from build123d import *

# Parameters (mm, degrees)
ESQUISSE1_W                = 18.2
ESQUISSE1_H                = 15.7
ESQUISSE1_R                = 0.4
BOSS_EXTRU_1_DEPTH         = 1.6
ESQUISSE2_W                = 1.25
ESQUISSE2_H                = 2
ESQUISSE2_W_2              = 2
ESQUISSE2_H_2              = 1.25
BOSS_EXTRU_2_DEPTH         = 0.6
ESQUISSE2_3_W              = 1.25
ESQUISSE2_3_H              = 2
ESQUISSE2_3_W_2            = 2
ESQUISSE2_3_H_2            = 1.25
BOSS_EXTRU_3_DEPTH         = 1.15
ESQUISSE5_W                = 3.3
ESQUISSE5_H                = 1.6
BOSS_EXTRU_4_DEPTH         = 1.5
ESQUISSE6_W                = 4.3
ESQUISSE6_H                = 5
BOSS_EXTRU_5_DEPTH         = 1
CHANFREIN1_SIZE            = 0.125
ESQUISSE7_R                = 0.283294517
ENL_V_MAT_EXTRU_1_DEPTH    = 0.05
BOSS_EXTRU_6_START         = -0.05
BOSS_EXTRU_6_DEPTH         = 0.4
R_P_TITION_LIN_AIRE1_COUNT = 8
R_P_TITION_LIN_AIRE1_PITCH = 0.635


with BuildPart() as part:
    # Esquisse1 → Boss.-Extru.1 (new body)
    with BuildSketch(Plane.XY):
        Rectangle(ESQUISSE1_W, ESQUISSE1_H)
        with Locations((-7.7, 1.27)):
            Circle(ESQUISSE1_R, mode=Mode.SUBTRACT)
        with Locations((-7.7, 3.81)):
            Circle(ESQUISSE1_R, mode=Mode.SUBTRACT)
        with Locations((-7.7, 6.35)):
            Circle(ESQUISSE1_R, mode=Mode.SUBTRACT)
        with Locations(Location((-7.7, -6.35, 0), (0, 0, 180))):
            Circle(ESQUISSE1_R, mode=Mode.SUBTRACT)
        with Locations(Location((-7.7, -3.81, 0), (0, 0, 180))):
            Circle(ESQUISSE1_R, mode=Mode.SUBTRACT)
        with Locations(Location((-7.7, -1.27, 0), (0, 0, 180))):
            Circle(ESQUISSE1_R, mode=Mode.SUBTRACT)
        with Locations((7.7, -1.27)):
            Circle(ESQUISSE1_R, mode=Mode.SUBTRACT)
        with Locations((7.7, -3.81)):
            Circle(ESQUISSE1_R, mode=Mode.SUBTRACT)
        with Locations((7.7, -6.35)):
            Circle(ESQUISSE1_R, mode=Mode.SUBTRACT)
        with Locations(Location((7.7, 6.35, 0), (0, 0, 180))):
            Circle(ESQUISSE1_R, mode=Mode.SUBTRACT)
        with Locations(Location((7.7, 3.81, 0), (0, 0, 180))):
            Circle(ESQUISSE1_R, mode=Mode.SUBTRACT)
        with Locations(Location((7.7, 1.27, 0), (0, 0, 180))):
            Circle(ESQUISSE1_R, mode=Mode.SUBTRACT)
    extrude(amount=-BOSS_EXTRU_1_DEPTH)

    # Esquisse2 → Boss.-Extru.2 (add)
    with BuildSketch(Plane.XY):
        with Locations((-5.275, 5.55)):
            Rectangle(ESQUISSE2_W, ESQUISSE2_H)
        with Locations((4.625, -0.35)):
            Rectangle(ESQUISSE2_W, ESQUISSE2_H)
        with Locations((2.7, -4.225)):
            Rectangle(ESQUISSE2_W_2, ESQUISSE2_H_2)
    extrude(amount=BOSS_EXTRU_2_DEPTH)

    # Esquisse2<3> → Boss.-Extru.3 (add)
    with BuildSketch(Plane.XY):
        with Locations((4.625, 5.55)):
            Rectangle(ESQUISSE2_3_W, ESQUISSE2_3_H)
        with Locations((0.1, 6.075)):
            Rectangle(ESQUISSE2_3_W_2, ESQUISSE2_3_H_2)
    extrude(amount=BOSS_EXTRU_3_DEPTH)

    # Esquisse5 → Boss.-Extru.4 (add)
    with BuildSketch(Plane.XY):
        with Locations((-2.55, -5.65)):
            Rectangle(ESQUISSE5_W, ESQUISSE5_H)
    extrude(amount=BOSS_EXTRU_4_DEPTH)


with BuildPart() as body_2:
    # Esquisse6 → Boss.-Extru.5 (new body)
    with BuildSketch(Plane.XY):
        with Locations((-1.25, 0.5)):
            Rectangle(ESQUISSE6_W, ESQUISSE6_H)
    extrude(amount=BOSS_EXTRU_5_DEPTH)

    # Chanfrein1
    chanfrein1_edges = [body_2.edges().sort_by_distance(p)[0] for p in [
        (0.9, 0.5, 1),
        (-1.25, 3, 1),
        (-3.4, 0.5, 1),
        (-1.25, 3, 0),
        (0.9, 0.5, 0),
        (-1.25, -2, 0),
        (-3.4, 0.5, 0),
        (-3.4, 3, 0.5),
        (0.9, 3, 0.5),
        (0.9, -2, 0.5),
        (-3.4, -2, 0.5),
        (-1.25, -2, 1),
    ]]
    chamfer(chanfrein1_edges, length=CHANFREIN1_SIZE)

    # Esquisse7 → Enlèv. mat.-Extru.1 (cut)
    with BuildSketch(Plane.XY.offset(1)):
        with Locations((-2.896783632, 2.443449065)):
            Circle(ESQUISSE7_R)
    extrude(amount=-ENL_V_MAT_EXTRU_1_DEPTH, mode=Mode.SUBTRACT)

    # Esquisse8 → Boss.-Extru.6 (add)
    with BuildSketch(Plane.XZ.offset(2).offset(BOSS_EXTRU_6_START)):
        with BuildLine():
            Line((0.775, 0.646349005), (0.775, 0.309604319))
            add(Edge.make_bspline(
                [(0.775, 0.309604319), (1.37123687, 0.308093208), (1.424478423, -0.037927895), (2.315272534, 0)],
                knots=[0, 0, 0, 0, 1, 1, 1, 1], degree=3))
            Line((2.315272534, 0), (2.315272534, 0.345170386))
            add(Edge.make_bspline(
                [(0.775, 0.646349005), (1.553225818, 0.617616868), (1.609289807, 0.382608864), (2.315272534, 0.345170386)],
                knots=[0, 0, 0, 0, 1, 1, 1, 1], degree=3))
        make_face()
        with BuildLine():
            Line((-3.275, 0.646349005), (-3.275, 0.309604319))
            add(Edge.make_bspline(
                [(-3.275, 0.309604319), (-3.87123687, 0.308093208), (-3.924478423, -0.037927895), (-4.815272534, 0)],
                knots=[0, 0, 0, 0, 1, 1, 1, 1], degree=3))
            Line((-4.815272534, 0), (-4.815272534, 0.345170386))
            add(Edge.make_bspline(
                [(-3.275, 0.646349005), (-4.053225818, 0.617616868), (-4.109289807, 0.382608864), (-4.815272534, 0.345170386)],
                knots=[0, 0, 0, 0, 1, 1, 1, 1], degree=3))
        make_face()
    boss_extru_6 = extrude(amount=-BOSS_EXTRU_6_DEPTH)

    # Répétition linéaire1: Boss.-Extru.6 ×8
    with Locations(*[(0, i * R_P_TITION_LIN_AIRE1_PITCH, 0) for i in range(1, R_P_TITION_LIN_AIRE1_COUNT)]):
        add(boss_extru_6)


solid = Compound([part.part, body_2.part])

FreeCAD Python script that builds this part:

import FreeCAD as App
import Part
import Sketcher
from FreeCAD import Vector

doc = App.newDocument("Part")
body = doc.addObject("PartDesign::Body", "Body")

# Sketch on XY plane
sketch1 = body.newObject("Sketcher::SketchObject", "Sketch")
sketch1.AttachmentSupport = (doc.getObject("XY_Plane"), [""])
sketch1.MapMode = "FlatFace"
sketch1.addGeometry(Part.LineSegment(Vector(-9.1, 7.85, 0), Vector(-9.1, -7.85, 0)), False)
sketch1.addGeometry(Part.LineSegment(Vector(-9.1, -7.85, 0), Vector(9.1, -7.85, 0)), False)
sketch1.addGeometry(Part.LineSegment(Vector(9.1, -7.85, 0), Vector(9.1, 7.85, 0)), False)
sketch1.addGeometry(Part.LineSegment(Vector(9.1, 7.85, 0), Vector(-9.1, 7.85, 0)), False)
sketch1.addGeometry(Part.Circle(Vector(-7.7, -6.35, 0), Vector(0, 0, 1), 0.4), False)
sketch1.addGeometry(Part.Circle(Vector(-7.7, -3.81, 0), Vector(0, 0, 1), 0.4), False)
sketch1.addGeometry(Part.Circle(Vector(-7.7, -1.27, 0), Vector(0, 0, 1), 0.4), False)
sketch1.addGeometry(Part.Circle(Vector(7.7, -6.35, 0), Vector(0, 0, 1), 0.4), False)
sketch1.addGeometry(Part.Circle(Vector(7.7, -3.81, 0), Vector(0, 0, 1), 0.4), False)
sketch1.addGeometry(Part.Circle(Vector(7.7, -1.27, 0), Vector(0, 0, 1), 0.4), False)
sketch1.addGeometry(Part.Circle(Vector(-7.7, 1.27, 0), Vector(0, 0, 1), 0.4), False)
sketch1.addGeometry(Part.Circle(Vector(-7.7, 3.81, 0), Vector(0, 0, 1), 0.4), False)
sketch1.addGeometry(Part.Circle(Vector(-7.7, 6.35, 0), Vector(0, 0, 1), 0.4), False)
sketch1.addGeometry(Part.Circle(Vector(7.7, 1.27, 0), Vector(0, 0, 1), 0.4), False)
sketch1.addGeometry(Part.Circle(Vector(7.7, 3.81, 0), Vector(0, 0, 1), 0.4), False)
sketch1.addGeometry(Part.Circle(Vector(7.7, 6.35, 0), Vector(0, 0, 1), 0.4), False)
sketch1.addConstraint(Sketcher.Constraint("Coincident", 0, 2, 1, 1))
sketch1.addConstraint(Sketcher.Constraint("Coincident", 1, 2, 2, 1))
sketch1.addConstraint(Sketcher.Constraint("Coincident", 2, 2, 3, 1))
sketch1.addConstraint(Sketcher.Constraint("Coincident", 3, 2, 0, 1))
sketch1.addConstraint(Sketcher.Constraint("Vertical", 0))
sketch1.addConstraint(Sketcher.Constraint("Horizontal", 1))
sketch1.addConstraint(Sketcher.Constraint("Vertical", 2))
sketch1.addConstraint(Sketcher.Constraint("Horizontal", 3))
sketch1.addConstraint(Sketcher.Constraint("Equal", 4, 5))
sketch1.addConstraint(Sketcher.Constraint("Equal", 5, 6))
sketch1.addConstraint(Sketcher.Constraint("Equal", 6, 7))
sketch1.addConstraint(Sketcher.Constraint("Equal", 7, 8))
sketch1.addConstraint(Sketcher.Constraint("Equal", 8, 9))
sketch1.addConstraint(Sketcher.Constraint("Equal", 9, 10))
sketch1.addConstraint(Sketcher.Constraint("Equal", 10, 11))
sketch1.addConstraint(Sketcher.Constraint("Equal", 11, 12))
sketch1.addConstraint(Sketcher.Constraint("Equal", 12, 13))
sketch1.addConstraint(Sketcher.Constraint("Equal", 13, 14))
sketch1.addConstraint(Sketcher.Constraint("Equal", 14, 15))
sketch1.addConstraint(Sketcher.Constraint("Symmetric", 9, 3, 10, 3, -1, 1))
sketch1.addConstraint(Sketcher.Constraint("Symmetric", 8, 3, 11, 3, -1, 1))
sketch1.addConstraint(Sketcher.Constraint("Symmetric", 7, 3, 12, 3, -1, 1))
sketch1.addConstraint(Sketcher.Constraint("Symmetric", 6, 3, 13, 3, -1, 1))
sketch1.addConstraint(Sketcher.Constraint("Symmetric", 5, 3, 14, 3, -1, 1))
sketch1.addConstraint(Sketcher.Constraint("Symmetric", 4, 3, 15, 3, -1, 1))
sketch1.addConstraint(Sketcher.Constraint("Symmetric", 0, 2, 2, 2, -1, 1))
sketch1.addConstraint(Sketcher.Constraint("Symmetric", 4, 3, 7, 3, -2))
sketch1.addConstraint(Sketcher.Constraint("Symmetric", 5, 3, 8, 3, -2))
sketch1.addConstraint(Sketcher.Constraint("Symmetric", 6, 3, 9, 3, -2))
sketch1.addConstraint(Sketcher.Constraint("Vertical", 4, 3, 5, 3))
sketch1.addConstraint(Sketcher.Constraint("Vertical", 5, 3, 6, 3))
sketch1.addConstraint(Sketcher.Constraint("Diameter", 4, 0.8))
sketch1.addConstraint(Sketcher.Constraint("DistanceX", 1, 1, 1, 2, 18.2))
sketch1.addConstraint(Sketcher.Constraint("DistanceY", 0, 2, 0, 1, 15.7))
sketch1.addConstraint(Sketcher.Constraint("DistanceX", 4, 3, -1, 1, 7.7))
sketch1.addConstraint(Sketcher.Constraint("DistanceY", 4, 3, 12, 3, 12.7))
sketch1.addConstraint(Sketcher.Constraint("DistanceY", 5, 3, -1, 1, 3.81))
sketch1.addConstraint(Sketcher.Constraint("DistanceY", 6, 3, -1, 1, 1.27))
pad1 = body.newObject("PartDesign::Pad", "Pad")
pad1.Profile = sketch1
pad1.Length = 1.6
pad1.Reversed = True

# Sketch on XY plane
sketch2 = body.newObject("Sketcher::SketchObject", "Sketch001")
sketch2.AttachmentSupport = (doc.getObject("XY_Plane"), [""])
sketch2.MapMode = "FlatFace"
sketch2.addGeometry(Part.LineSegment(Vector(-5.9, 6.5, 0), Vector(-5.9, 4.5, 0)), False)
sketch2.addGeometry(Part.LineSegment(Vector(-5.9, 4.5, 0), Vector(-4.7, 4.5, 0)), False)
sketch2.addGeometry(Part.LineSegment(Vector(-4.7, 4.5, 0), Vector(-4.7, 6.5, 0)), False)
sketch2.addGeometry(Part.LineSegment(Vector(-4.7, 6.5, 0), Vector(-5.9, 6.5, 0)), False)
sketch2.addGeometry(Part.LineSegment(Vector(4, 0.7, 0), Vector(4, -1.4, 0)), False)
sketch2.addGeometry(Part.LineSegment(Vector(4, -1.4, 0), Vector(5.2, -1.4, 0)), False)
sketch2.addGeometry(Part.LineSegment(Vector(5.2, -1.4, 0), Vector(5.2, 0.7, 0)), False)
sketch2.addGeometry(Part.LineSegment(Vector(5.2, 0.7, 0), Vector(4, 0.7, 0)), False)
sketch2.addGeometry(Part.LineSegment(Vector(1.7, -3.6, 0), Vector(1.7, -4.8, 0)), False)
sketch2.addGeometry(Part.LineSegment(Vector(1.7, -4.8, 0), Vector(3.7, -4.8, 0)), False)
sketch2.addGeometry(Part.LineSegment(Vector(3.7, -4.8, 0), Vector(3.7, -3.6, 0)), False)
sketch2.addGeometry(Part.LineSegment(Vector(3.7, -3.6, 0), Vector(1.7, -3.6, 0)), False)
sketch2.addConstraint(Sketcher.Constraint("Coincident", 0, 2, 1, 1))
sketch2.addConstraint(Sketcher.Constraint("Coincident", 1, 2, 2, 1))
sketch2.addConstraint(Sketcher.Constraint("Coincident", 2, 2, 3, 1))
sketch2.addConstraint(Sketcher.Constraint("Coincident", 3, 2, 0, 1))
sketch2.addConstraint(Sketcher.Constraint("Coincident", 4, 2, 5, 1))
sketch2.addConstraint(Sketcher.Constraint("Coincident", 5, 2, 6, 1))
sketch2.addConstraint(Sketcher.Constraint("Coincident", 6, 2, 7, 1))
sketch2.addConstraint(Sketcher.Constraint("Coincident", 7, 2, 4, 1))
sketch2.addConstraint(Sketcher.Constraint("Coincident", 8, 2, 9, 1))
sketch2.addConstraint(Sketcher.Constraint("Coincident", 9, 2, 10, 1))
sketch2.addConstraint(Sketcher.Constraint("Coincident", 10, 2, 11, 1))
sketch2.addConstraint(Sketcher.Constraint("Coincident", 11, 2, 8, 1))
sketch2.addConstraint(Sketcher.Constraint("Vertical", 0))
sketch2.addConstraint(Sketcher.Constraint("Horizontal", 1))
sketch2.addConstraint(Sketcher.Constraint("Vertical", 2))
sketch2.addConstraint(Sketcher.Constraint("Horizontal", 3))
sketch2.addConstraint(Sketcher.Constraint("Vertical", 4))
sketch2.addConstraint(Sketcher.Constraint("Horizontal", 5))
sketch2.addConstraint(Sketcher.Constraint("Vertical", 6))
sketch2.addConstraint(Sketcher.Constraint("Horizontal", 7))
sketch2.addConstraint(Sketcher.Constraint("Vertical", 8))
sketch2.addConstraint(Sketcher.Constraint("Horizontal", 9))
sketch2.addConstraint(Sketcher.Constraint("Vertical", 10))
sketch2.addConstraint(Sketcher.Constraint("Horizontal", 11))
sketch2.addConstraint(Sketcher.Constraint("Equal", 3, 5))
sketch2.addConstraint(Sketcher.Constraint("Equal", 11, 0))
sketch2.addConstraint(Sketcher.Constraint("Equal", 2, 4))
sketch2.addConstraint(Sketcher.Constraint("Equal", 7, 8))
sketch2.addConstraint(Sketcher.Constraint("DistanceX", 9, 1, 9, 2, 2.0))
sketch2.addConstraint(Sketcher.Constraint("DistanceX", -1, 1, 4, 2, 4.0))
sketch2.addConstraint(Sketcher.Constraint("DistanceX", 1, 1, 1, 2, 1.25))
sketch2.addConstraint(Sketcher.Constraint("DistanceX", 0, 2, -1, 1, 5.9))
sketch2.addConstraint(Sketcher.Constraint("DistanceX", -1, 1, 8, 2, 1.7))
sketch2.addConstraint(Sketcher.Constraint("DistanceY", 10, 2, -1, 1, 3.6))
sketch2.addConstraint(Sketcher.Constraint("DistanceY", 4, 2, 1, 2, 5.9))
sketch2.addConstraint(Sketcher.Constraint("DistanceY", 8, 2, 4, 2, 3.5))
pad2 = body.newObject("PartDesign::Pad", "Pad001")
pad2.Profile = sketch2
pad2.Length = 0.6

# Sketch on XY plane
sketch3 = body.newObject("Sketcher::SketchObject", "Sketch002")
sketch3.AttachmentSupport = (doc.getObject("XY_Plane"), [""])
sketch3.MapMode = "FlatFace"
sketch3.addGeometry(Part.LineSegment(Vector(4, 6.5, 0), Vector(4, 4.5, 0)), False)
sketch3.addGeometry(Part.LineSegment(Vector(4, 4.5, 0), Vector(5.2, 4.5, 0)), False)
sketch3.addGeometry(Part.LineSegment(Vector(5.2, 4.5, 0), Vector(5.2, 6.5, 0)), False)
sketch3.addGeometry(Part.LineSegment(Vector(5.2, 6.5, 0), Vector(4, 6.5, 0)), False)
sketch3.addGeometry(Part.LineSegment(Vector(-0.9, 6.7, 0), Vector(-0.9, 5.5, 0)), False)
sketch3.addGeometry(Part.LineSegment(Vector(-0.9, 5.5, 0), Vector(1.1, 5.5, 0)), False)
sketch3.addGeometry(Part.LineSegment(Vector(1.1, 5.5, 0), Vector(1.1, 6.7, 0)), False)
sketch3.addGeometry(Part.LineSegment(Vector(1.1, 6.7, 0), Vector(-0.9, 6.7, 0)), False)
sketch3.addConstraint(Sketcher.Constraint("Coincident", 0, 2, 1, 1))
sketch3.addConstraint(Sketcher.Constraint("Coincident", 1, 2, 2, 1))
sketch3.addConstraint(Sketcher.Constraint("Coincident", 2, 2, 3, 1))
sketch3.addConstraint(Sketcher.Constraint("Coincident", 3, 2, 0, 1))
sketch3.addConstraint(Sketcher.Constraint("Coincident", 4, 2, 5, 1))
sketch3.addConstraint(Sketcher.Constraint("Coincident", 5, 2, 6, 1))
sketch3.addConstraint(Sketcher.Constraint("Coincident", 6, 2, 7, 1))
sketch3.addConstraint(Sketcher.Constraint("Coincident", 7, 2, 4, 1))
sketch3.addConstraint(Sketcher.Constraint("Vertical", 0))
sketch3.addConstraint(Sketcher.Constraint("Horizontal", 1))
sketch3.addConstraint(Sketcher.Constraint("Vertical", 2))
sketch3.addConstraint(Sketcher.Constraint("Horizontal", 3))
sketch3.addConstraint(Sketcher.Constraint("Vertical", 4))
sketch3.addConstraint(Sketcher.Constraint("Horizontal", 5))
sketch3.addConstraint(Sketcher.Constraint("Vertical", 6))
sketch3.addConstraint(Sketcher.Constraint("Horizontal", 7))
sketch3.addConstraint(Sketcher.Constraint("Equal", 7, 0))
sketch3.addConstraint(Sketcher.Constraint("Equal", 3, 4))
sketch3.addConstraint(Sketcher.Constraint("DistanceX", 5, 1, 5, 2, 2.0))
sketch3.addConstraint(Sketcher.Constraint("DistanceX", -1, 1, 0, 2, 4.0))
sketch3.addConstraint(Sketcher.Constraint("DistanceX", 1, 1, 1, 2, 1.25))
sketch3.addConstraint(Sketcher.Constraint("DistanceX", 4, 2, -1, 1, 0.9))
sketch3.addConstraint(Sketcher.Constraint("DistanceY", -1, 1, 6, 2, 6.7))
sketch3.addConstraint(Sketcher.Constraint("DistanceY", 0, 2, 4, 2, 0.9))
pad3 = body.newObject("PartDesign::Pad", "Pad002")
pad3.Profile = sketch3
pad3.Length = 1.15

# Sketch on XY plane
sketch4 = body.newObject("Sketcher::SketchObject", "Sketch003")
sketch4.AttachmentSupport = (doc.getObject("XY_Plane"), [""])
sketch4.MapMode = "FlatFace"
sketch4.addGeometry(Part.LineSegment(Vector(-4.2, -4.8, 0), Vector(-4.2, -6.5, 0)), False)
sketch4.addGeometry(Part.LineSegment(Vector(-4.2, -6.5, 0), Vector(-0.9, -6.5, 0)), False)
sketch4.addGeometry(Part.LineSegment(Vector(-0.9, -6.5, 0), Vector(-0.9, -4.8, 0)), False)
sketch4.addGeometry(Part.LineSegment(Vector(-0.9, -4.8, 0), Vector(-4.2, -4.8, 0)), False)
sketch4.addConstraint(Sketcher.Constraint("Coincident", 0, 2, 1, 1))
sketch4.addConstraint(Sketcher.Constraint("Coincident", 1, 2, 2, 1))
sketch4.addConstraint(Sketcher.Constraint("Coincident", 2, 2, 3, 1))
sketch4.addConstraint(Sketcher.Constraint("Coincident", 3, 2, 0, 1))
sketch4.addConstraint(Sketcher.Constraint("Vertical", 0))
sketch4.addConstraint(Sketcher.Constraint("Horizontal", 1))
sketch4.addConstraint(Sketcher.Constraint("Vertical", 2))
sketch4.addConstraint(Sketcher.Constraint("Horizontal", 3))
sketch4.addConstraint(Sketcher.Constraint("DistanceX", 1, 1, 1, 2, 3.3))
sketch4.addConstraint(Sketcher.Constraint("DistanceY", 0, 2, 0, 1, 1.6))
sketch4.addConstraint(Sketcher.Constraint("DistanceX", 0, 2, -1, 1, 4.2))
sketch4.addConstraint(Sketcher.Constraint("DistanceY", 0, 2, -1, 1, 6.45))
pad4 = body.newObject("PartDesign::Pad", "Pad003")
pad4.Profile = sketch4
pad4.Length = 1.5
body2 = doc.addObject("PartDesign::Body", "Body001")

# Sketch on XY plane
sketch5 = body2.newObject("Sketcher::SketchObject", "Sketch004")
sketch5.AttachmentSupport = (doc.getObject("XY_Plane001"), [""])
sketch5.MapMode = "FlatFace"
sketch5.addGeometry(Part.LineSegment(Vector(-3.4, 3, 0), Vector(-3.4, -2, 0)), False)
sketch5.addGeometry(Part.LineSegment(Vector(-3.4, -2, 0), Vector(0.9, -2, 0)), False)
sketch5.addGeometry(Part.LineSegment(Vector(0.9, -2, 0), Vector(0.9, 3, 0)), False)
sketch5.addGeometry(Part.LineSegment(Vector(0.9, 3, 0), Vector(-3.4, 3, 0)), False)
sketch5.addConstraint(Sketcher.Constraint("Coincident", 0, 2, 1, 1))
sketch5.addConstraint(Sketcher.Constraint("Coincident", 1, 2, 2, 1))
sketch5.addConstraint(Sketcher.Constraint("Coincident", 2, 2, 3, 1))
sketch5.addConstraint(Sketcher.Constraint("Coincident", 3, 2, 0, 1))
sketch5.addConstraint(Sketcher.Constraint("Vertical", 0))
sketch5.addConstraint(Sketcher.Constraint("Horizontal", 1))
sketch5.addConstraint(Sketcher.Constraint("Vertical", 2))
sketch5.addConstraint(Sketcher.Constraint("Horizontal", 3))
sketch5.addConstraint(Sketcher.Constraint("DistanceY", 0, 2, 0, 1, 5.0))
sketch5.addConstraint(Sketcher.Constraint("DistanceX", 1, 1, 1, 2, 4.3))
sketch5.addConstraint(Sketcher.Constraint("DistanceY", 0, 2, -1, 1, 2.0))
sketch5.addConstraint(Sketcher.Constraint("DistanceX", 0, 2, -1, 1, 3.4))
pad5 = body2.newObject("PartDesign::Pad", "Pad004")
pad5.Profile = sketch5
pad5.Length = 1
doc.recompute()

chamfer = body2.newObject("PartDesign::Chamfer", "Chamfer")
chamfer.Base = (pad5, ["Edge1"])
chamfer.UseAllEdges = True
chamfer.Size = 0.125

# Sketch on XY plane
sketch6 = body2.newObject("Sketcher::SketchObject", "Sketch005")
sketch6.AttachmentSupport = (doc.getObject("XY_Plane001"), [""])
sketch6.MapMode = "FlatFace"
sketch6.AttachmentOffset = App.Placement(Vector(0, 0, 1), App.Rotation())
sketch6.addGeometry(Part.Circle(Vector(-2.9, 2.44, 0), Vector(0, 0, 1), 0.28), False)
sketch6.addConstraint(Sketcher.Constraint("Diameter", 0, 0.566589))
sketch6.addConstraint(Sketcher.Constraint("DistanceY", -1, 1, 0, 3, 2.443449))
sketch6.addConstraint(Sketcher.Constraint("DistanceX", 0, 3, -1, 1, 2.896784))
pocket1 = body2.newObject("PartDesign::Pocket", "Pocket")
pocket1.Profile = sketch6
pocket1.Length = 0.05

# Sketch on XZ plane
sketch7 = body2.newObject("Sketcher::SketchObject", "Sketch006")
sketch7.AttachmentSupport = (doc.getObject("XZ_Plane001"), [""])
sketch7.MapMode = "FlatFace"
sketch7.AttachmentOffset = App.Placement(Vector(0, 0, 1.95), App.Rotation())
sketch7.addGeometry(Part.LineSegment(Vector(0.775, 0.646349, 0), Vector(0.775, 0.309604, 0)), False)
sketch7.addGeometry(Part.BSplineCurve([Vector(0.775, 0.309604, 0), Vector(1.371237, 0.308093, 0), Vector(1.424478, -0.037928, 0), Vector(2.315273, 0, 0)], [4, 4], [0, 1], False, 3, [1, 1, 1, 1], False), False)
sketch7.addGeometry(Part.LineSegment(Vector(2.315273, 0, 0), Vector(2.315273, 0.34517, 0)), False)
sketch7.addGeometry(Part.BSplineCurve([Vector(0.775, 0.646349, 0), Vector(1.553226, 0.617617, 0), Vector(1.60929, 0.382609, 0), Vector(2.315273, 0.34517, 0)], [4, 4], [0, 1], False, 3, [1, 1, 1, 1], False), False)
sketch7.addGeometry(Part.LineSegment(Vector(-3.275, 0.309604, 0), Vector(-3.275, 0.646349, 0)), False)
sketch7.addGeometry(Part.BSplineCurve([Vector(-3.275, 0.646349, 0), Vector(-4.053226, 0.617617, 0), Vector(-4.10929, 0.382609, 0), Vector(-4.815273, 0.34517, 0)], [4, 4], [0, 1], False, 3, [1, 1, 1, 1], False), False)
sketch7.addGeometry(Part.LineSegment(Vector(-4.815273, 0.34517, 0), Vector(-4.815273, 0, 0)), False)
sketch7.addGeometry(Part.BSplineCurve([Vector(-3.275, 0.309604, 0), Vector(-3.871237, 0.308093, 0), Vector(-3.924478, -0.037928, 0), Vector(-4.815273, 0, 0)], [4, 4], [0, 1], False, 3, [1, 1, 1, 1], False), False)
sketch7.addConstraint(Sketcher.Constraint("Block", 1))
sketch7.addConstraint(Sketcher.Constraint("Block", 3))
sketch7.addConstraint(Sketcher.Constraint("Block", 5))
sketch7.addConstraint(Sketcher.Constraint("Block", 7))
sketch7.addConstraint(Sketcher.Constraint("Coincident", 0, 2, 1, 1))
sketch7.addConstraint(Sketcher.Constraint("Coincident", 1, 2, 2, 1))
sketch7.addConstraint(Sketcher.Constraint("Coincident", 2, 2, 3, 2))
sketch7.addConstraint(Sketcher.Constraint("Coincident", 3, 1, 0, 1))
sketch7.addConstraint(Sketcher.Constraint("Coincident", 4, 2, 5, 1))
sketch7.addConstraint(Sketcher.Constraint("Coincident", 5, 2, 6, 1))
sketch7.addConstraint(Sketcher.Constraint("Coincident", 6, 2, 7, 2))
sketch7.addConstraint(Sketcher.Constraint("Coincident", 7, 1, 4, 1))
pad6 = body2.newObject("PartDesign::Pad", "Pad005")
pad6.Profile = sketch7
pad6.Length = 0.4
pad6.Reversed = True
doc.recompute()

linearpattern = body2.newObject("PartDesign::LinearPattern", "LinearPattern")
linearpattern.Originals = [pad6]
linearpattern.Direction = (doc.getObject("Y_Axis001"), [""])
linearpattern.Mode = "offset"
linearpattern.Offset = 0.635
linearpattern.Occurrences = 8
body2.Tip = linearpattern

doc.recompute()
